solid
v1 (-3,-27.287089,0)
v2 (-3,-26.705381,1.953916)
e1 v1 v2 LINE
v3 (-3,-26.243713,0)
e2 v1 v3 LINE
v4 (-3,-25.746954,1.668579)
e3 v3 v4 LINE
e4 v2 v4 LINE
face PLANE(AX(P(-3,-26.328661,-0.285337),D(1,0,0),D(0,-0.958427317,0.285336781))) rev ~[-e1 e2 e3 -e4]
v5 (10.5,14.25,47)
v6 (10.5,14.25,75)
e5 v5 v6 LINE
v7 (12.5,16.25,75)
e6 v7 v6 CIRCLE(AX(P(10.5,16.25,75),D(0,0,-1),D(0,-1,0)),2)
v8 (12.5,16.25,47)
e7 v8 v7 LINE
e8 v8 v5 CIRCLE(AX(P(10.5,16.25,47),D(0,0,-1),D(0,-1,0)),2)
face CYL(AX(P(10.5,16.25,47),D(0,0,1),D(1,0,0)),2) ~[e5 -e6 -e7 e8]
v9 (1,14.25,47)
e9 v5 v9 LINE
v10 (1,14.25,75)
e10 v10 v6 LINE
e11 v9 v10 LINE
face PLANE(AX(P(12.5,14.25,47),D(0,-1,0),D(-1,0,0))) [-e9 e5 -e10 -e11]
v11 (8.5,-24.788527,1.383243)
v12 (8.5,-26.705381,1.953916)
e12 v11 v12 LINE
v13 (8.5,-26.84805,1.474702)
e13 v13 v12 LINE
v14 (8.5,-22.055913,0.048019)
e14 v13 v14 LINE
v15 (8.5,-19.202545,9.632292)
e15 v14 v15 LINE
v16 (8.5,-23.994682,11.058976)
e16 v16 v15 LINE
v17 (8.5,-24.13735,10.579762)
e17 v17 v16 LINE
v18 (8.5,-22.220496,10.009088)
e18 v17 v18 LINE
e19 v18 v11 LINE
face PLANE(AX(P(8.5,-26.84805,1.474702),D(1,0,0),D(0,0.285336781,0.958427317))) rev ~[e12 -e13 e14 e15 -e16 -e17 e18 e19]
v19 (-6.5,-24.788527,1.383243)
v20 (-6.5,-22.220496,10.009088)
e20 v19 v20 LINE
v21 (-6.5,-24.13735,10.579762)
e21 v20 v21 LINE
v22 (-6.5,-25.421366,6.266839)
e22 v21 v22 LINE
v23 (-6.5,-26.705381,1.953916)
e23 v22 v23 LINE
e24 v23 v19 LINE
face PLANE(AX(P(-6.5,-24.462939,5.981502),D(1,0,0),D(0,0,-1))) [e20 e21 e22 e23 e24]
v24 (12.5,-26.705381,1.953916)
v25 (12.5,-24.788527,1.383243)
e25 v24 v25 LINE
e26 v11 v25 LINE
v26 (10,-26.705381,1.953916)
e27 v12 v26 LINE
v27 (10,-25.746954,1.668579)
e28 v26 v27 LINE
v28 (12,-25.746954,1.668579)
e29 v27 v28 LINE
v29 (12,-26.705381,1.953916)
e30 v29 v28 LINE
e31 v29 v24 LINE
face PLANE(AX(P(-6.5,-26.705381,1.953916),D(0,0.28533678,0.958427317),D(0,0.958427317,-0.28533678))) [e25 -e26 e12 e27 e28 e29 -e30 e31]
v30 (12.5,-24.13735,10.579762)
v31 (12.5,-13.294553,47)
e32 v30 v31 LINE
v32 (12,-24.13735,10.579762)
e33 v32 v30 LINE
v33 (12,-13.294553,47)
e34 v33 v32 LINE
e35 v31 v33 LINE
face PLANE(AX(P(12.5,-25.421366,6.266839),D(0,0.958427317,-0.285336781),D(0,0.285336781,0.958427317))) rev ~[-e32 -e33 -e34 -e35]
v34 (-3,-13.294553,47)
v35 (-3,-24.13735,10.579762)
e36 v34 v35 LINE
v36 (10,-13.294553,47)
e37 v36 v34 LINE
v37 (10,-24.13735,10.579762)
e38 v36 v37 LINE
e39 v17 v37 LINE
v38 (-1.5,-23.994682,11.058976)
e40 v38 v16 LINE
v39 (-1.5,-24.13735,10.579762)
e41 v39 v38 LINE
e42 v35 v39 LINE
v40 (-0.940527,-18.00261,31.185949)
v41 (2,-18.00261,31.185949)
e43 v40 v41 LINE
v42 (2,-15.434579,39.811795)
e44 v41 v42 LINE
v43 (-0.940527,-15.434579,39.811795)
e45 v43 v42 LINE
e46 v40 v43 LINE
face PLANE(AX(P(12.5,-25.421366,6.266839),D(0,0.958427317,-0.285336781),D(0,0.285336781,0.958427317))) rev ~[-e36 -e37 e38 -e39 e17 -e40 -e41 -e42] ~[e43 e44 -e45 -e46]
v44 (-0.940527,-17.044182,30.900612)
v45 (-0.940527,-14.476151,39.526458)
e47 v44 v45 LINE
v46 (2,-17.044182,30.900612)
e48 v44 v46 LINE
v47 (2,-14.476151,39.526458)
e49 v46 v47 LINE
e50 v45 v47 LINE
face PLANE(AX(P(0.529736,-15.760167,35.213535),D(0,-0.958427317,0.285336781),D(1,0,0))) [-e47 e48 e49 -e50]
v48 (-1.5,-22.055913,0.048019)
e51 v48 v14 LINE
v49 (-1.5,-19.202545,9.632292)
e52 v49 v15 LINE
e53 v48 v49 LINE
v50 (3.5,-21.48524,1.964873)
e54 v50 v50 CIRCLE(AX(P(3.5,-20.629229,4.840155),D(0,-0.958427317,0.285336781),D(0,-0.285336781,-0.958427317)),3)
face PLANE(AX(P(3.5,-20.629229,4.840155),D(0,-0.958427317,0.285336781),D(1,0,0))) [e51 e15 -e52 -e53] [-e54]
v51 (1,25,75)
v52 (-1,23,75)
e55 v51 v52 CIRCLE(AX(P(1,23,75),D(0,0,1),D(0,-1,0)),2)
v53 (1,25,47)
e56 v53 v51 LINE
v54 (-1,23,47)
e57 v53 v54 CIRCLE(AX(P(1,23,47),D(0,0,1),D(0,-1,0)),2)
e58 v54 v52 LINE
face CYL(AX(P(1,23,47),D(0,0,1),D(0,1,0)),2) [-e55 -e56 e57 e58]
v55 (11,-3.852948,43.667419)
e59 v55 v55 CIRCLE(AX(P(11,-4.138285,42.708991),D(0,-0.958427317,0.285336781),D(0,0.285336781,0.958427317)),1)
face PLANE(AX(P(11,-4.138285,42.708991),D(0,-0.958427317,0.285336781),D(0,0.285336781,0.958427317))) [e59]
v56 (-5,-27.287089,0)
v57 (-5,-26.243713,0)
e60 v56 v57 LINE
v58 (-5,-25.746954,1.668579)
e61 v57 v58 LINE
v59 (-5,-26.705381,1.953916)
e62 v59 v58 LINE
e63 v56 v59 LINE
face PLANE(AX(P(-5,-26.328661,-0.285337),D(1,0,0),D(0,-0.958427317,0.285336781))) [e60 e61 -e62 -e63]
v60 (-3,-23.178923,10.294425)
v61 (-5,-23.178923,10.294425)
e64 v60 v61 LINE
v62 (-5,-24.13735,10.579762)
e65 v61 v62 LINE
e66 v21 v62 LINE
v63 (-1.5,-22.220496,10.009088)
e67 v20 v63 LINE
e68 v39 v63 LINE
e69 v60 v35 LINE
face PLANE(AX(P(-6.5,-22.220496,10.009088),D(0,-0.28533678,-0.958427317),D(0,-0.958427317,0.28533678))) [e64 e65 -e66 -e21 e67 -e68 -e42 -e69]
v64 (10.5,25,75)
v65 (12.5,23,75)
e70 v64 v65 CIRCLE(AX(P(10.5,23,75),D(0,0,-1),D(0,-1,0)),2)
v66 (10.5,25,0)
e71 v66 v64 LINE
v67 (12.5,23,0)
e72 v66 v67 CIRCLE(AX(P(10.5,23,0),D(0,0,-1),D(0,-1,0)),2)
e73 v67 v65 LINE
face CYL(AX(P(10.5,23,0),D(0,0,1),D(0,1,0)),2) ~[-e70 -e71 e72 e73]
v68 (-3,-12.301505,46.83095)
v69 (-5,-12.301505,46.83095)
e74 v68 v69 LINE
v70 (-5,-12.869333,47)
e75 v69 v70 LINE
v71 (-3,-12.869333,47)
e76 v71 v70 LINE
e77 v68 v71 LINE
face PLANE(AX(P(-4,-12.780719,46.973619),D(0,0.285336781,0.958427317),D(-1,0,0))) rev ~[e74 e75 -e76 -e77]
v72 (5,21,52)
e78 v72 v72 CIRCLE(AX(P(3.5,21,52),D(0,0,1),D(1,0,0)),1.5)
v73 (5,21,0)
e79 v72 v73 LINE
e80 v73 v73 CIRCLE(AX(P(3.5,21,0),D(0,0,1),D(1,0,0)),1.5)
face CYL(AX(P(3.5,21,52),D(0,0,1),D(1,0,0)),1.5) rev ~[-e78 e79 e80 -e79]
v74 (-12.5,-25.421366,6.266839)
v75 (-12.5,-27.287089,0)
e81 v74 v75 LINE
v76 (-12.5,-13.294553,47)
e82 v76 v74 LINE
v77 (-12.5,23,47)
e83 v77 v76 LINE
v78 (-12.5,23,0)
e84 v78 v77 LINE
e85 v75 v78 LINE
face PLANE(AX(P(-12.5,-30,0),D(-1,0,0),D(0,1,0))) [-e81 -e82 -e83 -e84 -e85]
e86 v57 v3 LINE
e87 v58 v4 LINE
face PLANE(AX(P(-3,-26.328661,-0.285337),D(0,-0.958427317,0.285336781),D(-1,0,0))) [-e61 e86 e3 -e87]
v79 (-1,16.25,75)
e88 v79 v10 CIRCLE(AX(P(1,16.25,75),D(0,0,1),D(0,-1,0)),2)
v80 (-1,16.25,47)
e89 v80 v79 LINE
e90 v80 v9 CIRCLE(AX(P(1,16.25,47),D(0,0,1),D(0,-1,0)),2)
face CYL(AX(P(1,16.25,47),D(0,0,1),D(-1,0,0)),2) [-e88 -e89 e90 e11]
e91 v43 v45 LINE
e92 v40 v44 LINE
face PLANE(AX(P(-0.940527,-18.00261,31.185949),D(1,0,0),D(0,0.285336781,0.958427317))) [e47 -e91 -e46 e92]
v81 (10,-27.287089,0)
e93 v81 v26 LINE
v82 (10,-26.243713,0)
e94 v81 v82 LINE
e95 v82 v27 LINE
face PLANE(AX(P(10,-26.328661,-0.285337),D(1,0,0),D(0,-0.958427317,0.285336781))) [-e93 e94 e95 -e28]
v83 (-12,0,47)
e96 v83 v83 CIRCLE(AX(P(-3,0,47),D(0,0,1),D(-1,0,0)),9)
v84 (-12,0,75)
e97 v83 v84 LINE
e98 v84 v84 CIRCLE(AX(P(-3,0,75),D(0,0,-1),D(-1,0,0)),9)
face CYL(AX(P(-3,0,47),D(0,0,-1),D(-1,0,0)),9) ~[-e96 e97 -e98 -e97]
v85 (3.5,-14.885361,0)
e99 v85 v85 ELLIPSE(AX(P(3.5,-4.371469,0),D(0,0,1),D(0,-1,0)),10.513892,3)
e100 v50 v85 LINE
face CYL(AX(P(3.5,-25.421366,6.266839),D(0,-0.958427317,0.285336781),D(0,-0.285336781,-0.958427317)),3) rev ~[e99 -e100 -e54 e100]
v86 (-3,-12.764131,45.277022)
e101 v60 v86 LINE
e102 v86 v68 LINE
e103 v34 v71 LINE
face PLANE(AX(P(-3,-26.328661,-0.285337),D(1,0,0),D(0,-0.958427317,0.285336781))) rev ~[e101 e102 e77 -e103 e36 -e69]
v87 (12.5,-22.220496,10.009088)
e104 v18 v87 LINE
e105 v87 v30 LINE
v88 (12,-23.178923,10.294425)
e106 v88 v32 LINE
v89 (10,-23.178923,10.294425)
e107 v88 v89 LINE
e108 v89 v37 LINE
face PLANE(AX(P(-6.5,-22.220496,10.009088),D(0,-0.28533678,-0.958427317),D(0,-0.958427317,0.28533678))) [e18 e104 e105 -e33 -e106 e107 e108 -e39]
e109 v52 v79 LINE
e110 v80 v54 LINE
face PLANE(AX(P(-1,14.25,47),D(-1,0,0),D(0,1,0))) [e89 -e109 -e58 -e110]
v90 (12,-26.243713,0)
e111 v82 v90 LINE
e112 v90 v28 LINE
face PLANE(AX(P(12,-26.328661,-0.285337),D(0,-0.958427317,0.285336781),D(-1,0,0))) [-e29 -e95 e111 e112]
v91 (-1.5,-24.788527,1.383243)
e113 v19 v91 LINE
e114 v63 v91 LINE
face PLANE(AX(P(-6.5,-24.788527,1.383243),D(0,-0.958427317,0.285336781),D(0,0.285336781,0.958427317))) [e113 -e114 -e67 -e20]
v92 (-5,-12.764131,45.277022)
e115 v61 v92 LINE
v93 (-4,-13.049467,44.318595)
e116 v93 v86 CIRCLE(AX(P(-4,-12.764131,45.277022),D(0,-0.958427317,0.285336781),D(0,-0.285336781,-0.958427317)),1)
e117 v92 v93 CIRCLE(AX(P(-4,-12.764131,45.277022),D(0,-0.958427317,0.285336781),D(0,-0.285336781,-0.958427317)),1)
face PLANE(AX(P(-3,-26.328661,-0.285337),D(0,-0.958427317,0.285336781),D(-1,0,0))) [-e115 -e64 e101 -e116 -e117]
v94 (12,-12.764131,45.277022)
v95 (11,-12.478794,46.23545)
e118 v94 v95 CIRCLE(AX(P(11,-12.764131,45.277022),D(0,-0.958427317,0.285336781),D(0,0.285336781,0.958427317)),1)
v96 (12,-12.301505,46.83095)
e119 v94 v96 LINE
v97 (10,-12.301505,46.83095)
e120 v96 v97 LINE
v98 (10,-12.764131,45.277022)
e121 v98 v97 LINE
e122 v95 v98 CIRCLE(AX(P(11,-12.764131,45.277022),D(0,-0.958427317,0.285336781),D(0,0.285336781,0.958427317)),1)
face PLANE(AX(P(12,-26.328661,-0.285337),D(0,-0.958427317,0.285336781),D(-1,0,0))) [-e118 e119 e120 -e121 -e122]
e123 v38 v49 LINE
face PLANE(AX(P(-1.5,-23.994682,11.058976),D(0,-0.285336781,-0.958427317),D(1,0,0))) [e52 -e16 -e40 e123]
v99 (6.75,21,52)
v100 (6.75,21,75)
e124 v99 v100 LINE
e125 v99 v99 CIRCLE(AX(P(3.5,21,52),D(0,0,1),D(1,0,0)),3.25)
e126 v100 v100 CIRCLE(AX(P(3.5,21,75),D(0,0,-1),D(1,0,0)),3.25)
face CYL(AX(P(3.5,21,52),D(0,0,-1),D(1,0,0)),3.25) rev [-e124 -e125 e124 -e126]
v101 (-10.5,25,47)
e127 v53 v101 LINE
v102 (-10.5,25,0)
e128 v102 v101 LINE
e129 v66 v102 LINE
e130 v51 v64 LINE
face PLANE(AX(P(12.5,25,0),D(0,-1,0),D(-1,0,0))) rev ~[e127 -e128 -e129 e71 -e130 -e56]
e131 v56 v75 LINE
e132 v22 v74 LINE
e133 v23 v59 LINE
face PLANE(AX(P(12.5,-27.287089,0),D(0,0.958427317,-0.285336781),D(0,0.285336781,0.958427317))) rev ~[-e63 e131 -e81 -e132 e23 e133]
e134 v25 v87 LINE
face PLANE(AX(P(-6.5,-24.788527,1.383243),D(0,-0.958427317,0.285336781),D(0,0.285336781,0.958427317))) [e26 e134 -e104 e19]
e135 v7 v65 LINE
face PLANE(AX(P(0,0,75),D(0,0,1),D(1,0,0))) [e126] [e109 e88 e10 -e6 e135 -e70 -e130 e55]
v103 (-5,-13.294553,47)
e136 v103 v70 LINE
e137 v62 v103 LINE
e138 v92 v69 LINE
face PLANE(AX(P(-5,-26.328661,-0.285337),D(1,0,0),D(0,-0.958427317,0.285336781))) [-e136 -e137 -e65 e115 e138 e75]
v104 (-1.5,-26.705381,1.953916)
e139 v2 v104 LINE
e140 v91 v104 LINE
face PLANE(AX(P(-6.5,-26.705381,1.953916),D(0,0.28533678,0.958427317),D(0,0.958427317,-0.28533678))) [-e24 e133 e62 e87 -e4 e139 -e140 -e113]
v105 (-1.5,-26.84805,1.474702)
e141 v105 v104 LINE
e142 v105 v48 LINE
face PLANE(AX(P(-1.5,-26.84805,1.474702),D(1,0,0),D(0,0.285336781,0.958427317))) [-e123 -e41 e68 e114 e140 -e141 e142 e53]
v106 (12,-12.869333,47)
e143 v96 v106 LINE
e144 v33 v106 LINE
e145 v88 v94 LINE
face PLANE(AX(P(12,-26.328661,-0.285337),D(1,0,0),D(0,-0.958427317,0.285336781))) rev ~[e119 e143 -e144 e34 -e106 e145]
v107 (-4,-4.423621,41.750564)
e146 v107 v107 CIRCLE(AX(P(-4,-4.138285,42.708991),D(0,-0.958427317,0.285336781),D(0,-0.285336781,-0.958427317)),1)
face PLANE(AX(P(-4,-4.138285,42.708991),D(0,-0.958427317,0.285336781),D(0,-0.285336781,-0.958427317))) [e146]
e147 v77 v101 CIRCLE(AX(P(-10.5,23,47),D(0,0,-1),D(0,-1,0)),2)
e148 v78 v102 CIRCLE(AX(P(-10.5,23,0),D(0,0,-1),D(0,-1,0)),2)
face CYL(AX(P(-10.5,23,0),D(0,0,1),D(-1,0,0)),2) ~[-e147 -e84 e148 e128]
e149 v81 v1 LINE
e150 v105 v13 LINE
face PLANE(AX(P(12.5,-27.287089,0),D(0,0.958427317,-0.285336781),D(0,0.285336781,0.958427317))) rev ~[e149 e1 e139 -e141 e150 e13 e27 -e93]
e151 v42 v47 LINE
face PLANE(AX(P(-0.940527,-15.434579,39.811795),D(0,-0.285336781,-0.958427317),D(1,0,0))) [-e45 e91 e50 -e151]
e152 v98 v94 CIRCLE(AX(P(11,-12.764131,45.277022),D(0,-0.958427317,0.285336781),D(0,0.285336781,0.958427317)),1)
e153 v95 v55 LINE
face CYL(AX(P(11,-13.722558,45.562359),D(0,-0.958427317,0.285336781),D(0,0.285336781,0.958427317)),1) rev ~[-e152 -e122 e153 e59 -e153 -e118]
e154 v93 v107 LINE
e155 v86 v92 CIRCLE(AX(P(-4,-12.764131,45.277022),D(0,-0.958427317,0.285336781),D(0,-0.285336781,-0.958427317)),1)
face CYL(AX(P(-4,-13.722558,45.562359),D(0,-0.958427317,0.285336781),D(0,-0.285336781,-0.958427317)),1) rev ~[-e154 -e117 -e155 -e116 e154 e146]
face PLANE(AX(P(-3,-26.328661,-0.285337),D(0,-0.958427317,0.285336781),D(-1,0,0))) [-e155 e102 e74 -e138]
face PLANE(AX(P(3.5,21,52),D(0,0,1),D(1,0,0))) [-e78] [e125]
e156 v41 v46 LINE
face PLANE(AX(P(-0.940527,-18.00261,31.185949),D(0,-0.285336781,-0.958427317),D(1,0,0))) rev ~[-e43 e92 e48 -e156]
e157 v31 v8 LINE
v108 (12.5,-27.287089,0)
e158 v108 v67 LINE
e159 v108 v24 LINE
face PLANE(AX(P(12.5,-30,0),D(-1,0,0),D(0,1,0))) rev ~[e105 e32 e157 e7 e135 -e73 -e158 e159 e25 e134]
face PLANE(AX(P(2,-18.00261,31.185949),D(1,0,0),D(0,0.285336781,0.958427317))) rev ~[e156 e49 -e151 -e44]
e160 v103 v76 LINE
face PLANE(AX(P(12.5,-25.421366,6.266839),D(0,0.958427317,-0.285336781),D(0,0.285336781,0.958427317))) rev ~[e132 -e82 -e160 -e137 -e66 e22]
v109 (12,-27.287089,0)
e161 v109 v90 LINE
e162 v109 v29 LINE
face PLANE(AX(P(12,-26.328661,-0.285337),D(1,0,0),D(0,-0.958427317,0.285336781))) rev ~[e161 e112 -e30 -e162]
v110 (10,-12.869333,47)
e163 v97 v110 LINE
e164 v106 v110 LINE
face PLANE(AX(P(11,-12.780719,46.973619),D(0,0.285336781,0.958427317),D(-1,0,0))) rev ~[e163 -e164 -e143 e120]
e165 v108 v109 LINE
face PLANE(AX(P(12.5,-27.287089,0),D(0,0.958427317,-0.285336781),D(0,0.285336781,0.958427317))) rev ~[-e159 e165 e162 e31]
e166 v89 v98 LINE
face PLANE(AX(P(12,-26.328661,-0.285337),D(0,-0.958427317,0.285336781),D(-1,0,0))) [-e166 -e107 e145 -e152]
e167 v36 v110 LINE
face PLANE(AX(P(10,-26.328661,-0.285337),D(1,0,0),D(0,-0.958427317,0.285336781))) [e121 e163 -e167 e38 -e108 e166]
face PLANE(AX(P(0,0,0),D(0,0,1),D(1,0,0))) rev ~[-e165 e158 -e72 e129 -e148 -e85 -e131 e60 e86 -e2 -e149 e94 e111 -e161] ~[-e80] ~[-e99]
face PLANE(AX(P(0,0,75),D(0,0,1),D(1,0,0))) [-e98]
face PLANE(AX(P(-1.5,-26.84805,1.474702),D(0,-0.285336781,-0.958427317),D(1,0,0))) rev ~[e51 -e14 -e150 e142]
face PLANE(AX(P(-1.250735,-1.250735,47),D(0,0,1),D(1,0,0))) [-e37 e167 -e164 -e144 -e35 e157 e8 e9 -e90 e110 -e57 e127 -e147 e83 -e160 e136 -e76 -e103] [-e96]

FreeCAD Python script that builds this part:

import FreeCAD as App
import Part
import Sketcher
Q = App.Units.Quantity


def edges_at(feature, points):
    """Names of the edges that pass closest to the given points."""
    edges = feature.Shape.Edges
    near = lambda p: min(range(len(edges)), key=lambda i: edges[i].distToShape(Part.Vertex(*p))[0])
    return sorted({f"Edge{near(p) + 1}" for p in points})

doc = App.newDocument("Part")
params = doc.addObject("Spreadsheet::Sheet", "Params")
for row, (alias, value) in enumerate([
    ("sketch1_width", "25 mm"),
    ("sketch1_height", "60 mm"),
    ("pad1_length", "75 mm"),
    ("sketch2_diameter", "18 mm"),
    ("sketch2_width", "25 mm"),
    ("sketch2_height", "60 mm"),
    ("sketch2_width2", "13.5 mm"),
    ("sketch2_height2", "44.25 mm"),
    ("sketch3_diameter", "6.5 mm"),
    ("sketch4_diameter", "3 mm"),
    ("sketch5_width", "25 mm"),
    ("sketch5_height", "5 mm"),
    ("sketch6_height", "47 mm"),
    ("sketch6_length", "42.5 mm"),
    ("sketch7_diameter", "6 mm"),
    ("sketch8_width", "10 mm"),
    ("pocket7_length", "5 mm"),
    ("sketch9_length", "9 mm"),
    ("sketch9_length2", "2 mm"),
    ("pocket8_length", "15 mm"),
    ("pocket8_length2", "5 mm"),
    ("sketch10_diameter", "2 mm"),
    ("pocket9_length", "10 mm"),
    ("sketch11_width", "2 mm"),
    ("sketch11_height", "1 mm"),
    ("pocket10_length", "49.16 mm"),
    ("sketch12_height", "9 mm"),
    ("pocket11_length", "1 mm"),
    ("fillet_radius", "2 mm"),
], start=1):
    params.set(f"A{row}", alias)
    params.set(f"B{row}", "=" + value)
    params.setAlias(f"B{row}", alias)

body = doc.addObject("PartDesign::Body", "Body")

sketch1 = doc.addObject("Sketcher::SketchObject", "Sketch")
body.addObject(sketch1)
sketch1.AttachmentSupport = (doc.XY_Plane, [""])
sketch1.MapMode = "FlatFace"
sketch1.addGeometry(Part.LineSegment(App.Vector(-12, 30, 0), App.Vector(-12, -30, 0)), False)
sketch1.addGeometry(Part.LineSegment(App.Vector(-12, -30, 0), App.Vector(12, -30, 0)), False)
sketch1.addGeometry(Part.LineSegment(App.Vector(12, -30, 0), App.Vector(12, 30, 0)), False)
sketch1.addGeometry(Part.LineSegment(App.Vector(12, 30, 0), App.Vector(-12, 30, 0)), False)
sketch1.addConstraint(Sketcher.Constraint("Coincident", 0, 2, 1, 1))
sketch1.addConstraint(Sketcher.Constraint("Coincident", 1, 2, 2, 1))
sketch1.addConstraint(Sketcher.Constraint("Coincident", 2, 2, 3, 1))
sketch1.addConstraint(Sketcher.Constraint("Coincident", 3, 2, 0, 1))
sketch1.addConstraint(Sketcher.Constraint("Vertical", 0))
sketch1.addConstraint(Sketcher.Constraint("Horizontal", 1))
sketch1.addConstraint(Sketcher.Constraint("Vertical", 2))
sketch1.addConstraint(Sketcher.Constraint("Horizontal", 3))
sketch1.addConstraint(Sketcher.Constraint("Symmetric", 0, 2, 2, 2, -1, 1))
sketch1.addConstraint(Sketcher.Constraint("DistanceX", 1, 1, 1, 2, Q("25 mm")))
sketch1.addConstraint(Sketcher.Constraint("DistanceY", 0, 2, 0, 1, Q("60 mm")))
sketch1.setExpression("Constraints[9]", "Params.sketch1_width")
sketch1.setExpression("Constraints[10]", "Params.sketch1_height")
pad1 = doc.addObject("PartDesign::Pad", "Pad")
body.addObject(pad1)
pad1.Profile = sketch1
pad1.setExpression("Length", "Params.pad1_length")

sketch2 = doc.addObject("Sketcher::SketchObject", "Sketch001")
body.addObject(sketch2)
sketch2.AttachmentSupport = (doc.XY_Plane, [""])
sketch2.MapMode = "FlatFace"
sketch2.AttachmentOffset = App.Placement(App.Vector(0, 0, 47), App.Rotation())
sketch2.addGeometry(Part.LineSegment(App.Vector(-12, -30, 0), App.Vector(12, -30, 0)), False)
sketch2.addGeometry(Part.LineSegment(App.Vector(12, -30, 0), App.Vector(12, 14, 0)), False)
sketch2.addGeometry(Part.LineSegment(App.Vector(12, 14, 0), App.Vector(-1, 14, 0)), False)
sketch2.addGeometry(Part.LineSegment(App.Vector(-1, 14, 0), App.Vector(-1, 30, 0)), False)
sketch2.addGeometry(Part.LineSegment(App.Vector(-1, 30, 0), App.Vector(-12, 30, 0)), False)
sketch2.addGeometry(Part.LineSegment(App.Vector(-12, 30, 0), App.Vector(-12, -30, 0)), False)
sketch2.addGeometry(Part.Circle(App.Vector(-3, 0, 0), App.Vector(0, 0, 1), 9), False)
sketch2.addConstraint(Sketcher.Constraint("Coincident", 0, 2, 1, 1))
sketch2.addConstraint(Sketcher.Constraint("Coincident", 1, 2, 2, 1))
sketch2.addConstraint(Sketcher.Constraint("Coincident", 2, 2, 3, 1))
sketch2.addConstraint(Sketcher.Constraint("Coincident", 3, 2, 4, 1))
sketch2.addConstraint(Sketcher.Constraint("Coincident", 4, 2, 5, 1))
sketch2.addConstraint(Sketcher.Constraint("Coincident", 5, 2, 0, 1))
sketch2.addConstraint(Sketcher.Constraint("Horizontal", 0))
sketch2.addConstraint(Sketcher.Constraint("Vertical", 1))
sketch2.addConstraint(Sketcher.Constraint("Horizontal", 2))
sketch2.addConstraint(Sketcher.Constraint("Vertical", 3))
sketch2.addConstraint(Sketcher.Constraint("Horizontal", 4))
sketch2.addConstraint(Sketcher.Constraint("Vertical", 5))
sketch2.addConstraint(Sketcher.Constraint("Symmetric", 0, 2, 4, 2, -1, 1))
sketch2.addConstraint(Sketcher.Constraint("PointOnObject", 6, 3, -1))
sketch2.addConstraint(Sketcher.Constraint("Diameter", 6, Q("18 mm")))
sketch2.addConstraint(Sketcher.Constraint("DistanceX", 0, 1, 0, 2, Q("25 mm")))
sketch2.addConstraint(Sketcher.Constraint("DistanceY", 5, 2, 5, 1, Q("60 mm")))
sketch2.addConstraint(Sketcher.Constraint("DistanceX", 2, 2, 2, 1, Q("13.5 mm")))
sketch2.addConstraint(Sketcher.Constraint("DistanceX", 6, 3, -1, 1, Q("3 mm")))
sketch2.addConstraint(Sketcher.Constraint("DistanceY", 1, 1, 1, 2, Q("44.25 mm")))
sketch2.setExpression("Constraints[14]", "Params.sketch2_diameter")
sketch2.setExpression("Constraints[15]", "Params.sketch2_width")
sketch2.setExpression("Constraints[16]", "Params.sketch2_height")
sketch2.setExpression("Constraints[17]", "Params.sketch2_width2")
sketch2.setExpression("Constraints[19]", "Params.sketch2_height2")
pocket1 = doc.addObject("PartDesign::Pocket", "Pocket")
body.addObject(pocket1)
pocket1.Profile = sketch2
pocket1.Type = "ThroughAll"
pocket1.Reversed = True

sketch3 = doc.addObject("Sketcher::SketchObject", "Sketch002")
body.addObject(sketch3)
sketch3.AttachmentSupport = (doc.XY_Plane, [""])
sketch3.MapMode = "FlatFace"
sketch3.AttachmentOffset = App.Placement(App.Vector(0, 0, 52), App.Rotation())
sketch3.addGeometry(Part.Circle(App.Vector(3.5, 21, 0), App.Vector(0, 0, 1), 3.2), False)
sketch3.addConstraint(Sketcher.Constraint("Diameter", 0, Q("6.5 mm")))
sketch3.addConstraint(Sketcher.Constraint("DistanceY", -1, 1, 0, 3, Q("21 mm")))
sketch3.addConstraint(Sketcher.Constraint("DistanceX", -1, 1, 0, 3, Q("3.5 mm")))
sketch3.setExpression("Constraints[0]", "Params.sketch3_diameter")
pocket2 = doc.addObject("PartDesign::Pocket", "Pocket001")
body.addObject(pocket2)
pocket2.Profile = sketch3
pocket2.Type = "ThroughAll"
pocket2.Reversed = True

sketch4 = doc.addObject("Sketcher::SketchObject", "Sketch003")
body.addObject(sketch4)
sketch4.AttachmentSupport = (doc.XY_Plane, [""])
sketch4.MapMode = "FlatFace"
sketch4.AttachmentOffset = App.Placement(App.Vector(0, 0, 52), App.Rotation())
sketch4.addGeometry(Part.Circle(App.Vector(3.5, 21, 0), App.Vector(0, 0, 1), 1.5), False)
sketch4.addConstraint(Sketcher.Constraint("Diameter", 0, Q("3 mm")))
sketch4.addConstraint(Sketcher.Constraint("DistanceY", -1, 1, 0, 3, Q("21 mm")))
sketch4.addConstraint(Sketcher.Constraint("DistanceX", -1, 1, 0, 3, Q("3.5 mm")))
sketch4.setExpression("Constraints[0]", "Params.sketch4_diameter")
pocket3 = doc.addObject("PartDesign::Pocket", "Pocket002")
body.addObject(pocket3)
pocket3.Profile = sketch4
pocket3.Type = "ThroughAll"

sketch5 = doc.addObject("Sketcher::SketchObject", "Sketch004")
body.addObject(sketch5)
sketch5.AttachmentSupport = (doc.XY_Plane, [""])
sketch5.MapMode = "FlatFace"
sketch5.addGeometry(Part.LineSegment(App.Vector(12, 30, 0), App.Vector(12, 25, 0)), False)
sketch5.addGeometry(Part.LineSegment(App.Vector(12, 25, 0), App.Vector(-12, 25, 0)), False)
sketch5.addGeometry(Part.LineSegment(App.Vector(-12, 25, 0), App.Vector(-12, 30, 0)), False)
sketch5.addGeometry(Part.LineSegment(App.Vector(-12, 30, 0), App.Vector(12, 30, 0)), False)
sketch5.addConstraint(Sketcher.Constraint("Coincident", 0, 2, 1, 1))
sketch5.addConstraint(Sketcher.Constraint("Coincident", 1, 2, 2, 1))
sketch5.addConstraint(Sketcher.Constraint("Coincident", 2, 2, 3, 1))
sketch5.addConstraint(Sketcher.Constraint("Coincident", 3, 2, 0, 1))
sketch5.addConstraint(Sketcher.Constraint("Vertical", 0))
sketch5.addConstraint(Sketcher.Constraint("Horizontal", 1))
sketch5.addConstraint(Sketcher.Constraint("Vertical", 2))
sketch5.addConstraint(Sketcher.Constraint("Horizontal", 3))
sketch5.addConstraint(Sketcher.Constraint("DistanceX", 1, 2, 1, 1, Q("25 mm")))
sketch5.addConstraint(Sketcher.Constraint("DistanceY", 0, 2, 0, 1, Q("5 mm")))
sketch5.addConstraint(Sketcher.Constraint("DistanceY", -1, 1, 0, 2, Q("25 mm")))
sketch5.addConstraint(Sketcher.Constraint("DistanceX", -1, 1, 0, 2, Q("12.5 mm")))
sketch5.setExpression("Constraints[8]", "Params.sketch5_width")
sketch5.setExpression("Constraints[9]", "Params.sketch5_height")
pocket4 = doc.addObject("PartDesign::Pocket", "Pocket003")
body.addObject(pocket4)
pocket4.Profile = sketch5
pocket4.Type = "ThroughAll"
pocket4.Reversed = True

sketch6 = doc.addObject("Sketcher::SketchObject", "Sketch005")
body.addObject(sketch6)
sketch6.AttachmentSupport = (doc.YZ_Plane, [""])
sketch6.MapMode = "FlatFace"
sketch6.AttachmentOffset = App.Placement(App.Vector(0, 0, 12.5), App.Rotation())
sketch6.addGeometry(Part.LineSegment(App.Vector(-25.4, 6.3, 0), App.Vector(-13.3, 47, 0)), False)
sketch6.addGeometry(Part.LineSegment(App.Vector(-13.3, 47, 0), App.Vector(-30, 47, 0)), False)
sketch6.addGeometry(Part.LineSegment(App.Vector(-30, 47, 0), App.Vector(-30, 0, 0)), False)
sketch6.addGeometry(Part.LineSegment(App.Vector(-30, 0, 0), App.Vector(-27.3, 0, 0)), False)
sketch6.addGeometry(Part.LineSegment(App.Vector(-27.3, 0, 0), App.Vector(-25.4, 6.3, 0)), False)
sketch6.addConstraint(Sketcher.Constraint("Coincident", 0, 2, 1, 1))
sketch6.addConstraint(Sketcher.Constraint("Coincident", 1, 2, 2, 1))
sketch6.addConstraint(Sketcher.Constraint("Coincident", 2, 2, 3, 1))
sketch6.addConstraint(Sketcher.Constraint("Coincident", 3, 2, 4, 1))
sketch6.addConstraint(Sketcher.Constraint("Coincident", 4, 2, 0, 1))
sketch6.addConstraint(Sketcher.Constraint("Horizontal", 1))
sketch6.addConstraint(Sketcher.Constraint("Vertical", 2))
sketch6.addConstraint(Sketcher.Constraint("Horizontal", 3))
sketch6.addConstraint(Sketcher.Constraint("PointOnObject", 2, 2, -1))
sketch6.addConstraint(Sketcher.Constraint("Parallel", 0, 4))
sketch6.addConstraint(Sketcher.Constraint("DistanceY", 2, 2, 2, 1, Q("47 mm")))
sketch6.addConstraint(Sketcher.Constraint("DistanceX", 1, 2, -1, 1, Q("30 mm")))
sketch6.addConstraint(Sketcher.Constraint("Distance", 0, Q("42.5 mm")))
sketch6.addConstraint(Sketcher.Constraint("DistanceX", 3, 1, 3, 2, Q("2.712911 mm")))
sketch6.addConstraint(Sketcher.Constraint("Distance", 4, Q("6.538669 mm")))
sketch6.setExpression("Constraints[10]", "Params.sketch6_height")
sketch6.setExpression("Constraints[12]", "Params.sketch6_length")
pocket5 = doc.addObject("PartDesign::Pocket", "Pocket004")
body.addObject(pocket5)
pocket5.Profile = sketch6
pocket5.Type = "ThroughAll"

sketch7 = doc.addObject("Sketcher::SketchObject", "Sketch006")
body.addObject(sketch7)
sketch7.Placement = App.Placement(App.Vector(0, -25.065454, 7.462325), App.Rotation(App.Vector(1, 0, 0), App.Vector(0, 0.285336781, 0.958427317), App.Vector(0, -0.958427317, 0.285336781), "ZXY"))
sketch7.addGeometry(Part.Circle(App.Vector(3.5, -1.2, 0), App.Vector(0, 0, 1), 3), False)
sketch7.addConstraint(Sketcher.Constraint("Diameter", 0, Q("6 mm")))
sketch7.addConstraint(Sketcher.Constraint("DistanceX", -1, 1, 0, 3, Q("3.5 mm")))
sketch7.addConstraint(Sketcher.Constraint("DistanceY", 0, 3, -1, 1, Q("1.247341 mm")))
sketch7.setExpression("Constraints[0]", "Params.sketch7_diameter")
pocket6 = doc.addObject("PartDesign::Pocket", "Pocket005")
body.addObject(pocket6)
pocket6.Profile = sketch7
pocket6.Type = "ThroughAll"

sketch8 = doc.addObject("Sketcher::SketchObject", "Sketch007")
body.addObject(sketch8)
sketch8.Placement = App.Placement(App.Vector(0, -25.065454, 7.462325), App.Rotation(App.Vector(1, 0, 0), App.Vector(0, 0.285336781, 0.958427317), App.Vector(0, -0.958427317, 0.285336781), "ZXY"))
sketch8.addGeometry(Part.LineSegment(App.Vector(-2, 4, 0), App.Vector(-2, -6, 0)), False)
sketch8.addGeometry(Part.LineSegment(App.Vector(-2, -6, 0), App.Vector(8, -6, 0)), False)
sketch8.addGeometry(Part.LineSegment(App.Vector(8, -6, 0), App.Vector(8, 4, 0)), False)
sketch8.addGeometry(Part.LineSegment(App.Vector(8, 4, 0), App.Vector(-2, 4, 0)), False)
sketch8.addConstraint(Sketcher.Constraint("Coincident", 0, 2, 1, 1))
sketch8.addConstraint(Sketcher.Constraint("Coincident", 1, 2, 2, 1))
sketch8.addConstraint(Sketcher.Constraint("Coincident", 2, 2, 3, 1))
sketch8.addConstraint(Sketcher.Constraint("Coincident", 3, 2, 0, 1))
sketch8.addConstraint(Sketcher.Constraint("Vertical", 0))
sketch8.addConstraint(Sketcher.Constraint("Horizontal", 1))
sketch8.addConstraint(Sketcher.Constraint("Vertical", 2))
sketch8.addConstraint(Sketcher.Constraint("Horizontal", 3))
sketch8.addConstraint(Sketcher.Constraint("Equal", 3, 0))
sketch8.addConstraint(Sketcher.Constraint("DistanceX", 1, 1, 1, 2, Q("10 mm")))
sketch8.addConstraint(Sketcher.Constraint("DistanceX", 0, 2, -1, 1, Q("1.5 mm")))
sketch8.addConstraint(Sketcher.Constraint("DistanceY", 0, 2, -1, 1, Q("6.247341 mm")))
sketch8.setExpression("Constraints[9]", "Params.sketch8_width")
pocket7 = doc.addObject("PartDesign::Pocket", "Pocket006")
body.addObject(pocket7)
pocket7.Profile = sketch8
pocket7.setExpression("Length", "Params.pocket7_length")

sketch9 = doc.addObject("Sketcher::SketchObject", "Sketch008")
body.addObject(sketch9)
sketch9.AttachmentSupport = (doc.YZ_Plane, [""])
sketch9.MapMode = "FlatFace"
sketch9.AttachmentOffset = App.Placement(App.Vector(0, 0, -1.5), App.Rotation())
sketch9.addGeometry(Part.LineSegment(App.Vector(-24.1, 10.6, 0), App.Vector(-26.7, 2, 0)), False)
sketch9.addGeometry(Part.LineSegment(App.Vector(-26.7, 2, 0), App.Vector(-24.8, 1.4, 0)), False)
sketch9.addGeometry(Part.LineSegment(App.Vector(-24.8, 1.4, 0), App.Vector(-22.2, 10, 0)), False)
sketch9.addGeometry(Part.LineSegment(App.Vector(-22.2, 10, 0), App.Vector(-24.1, 10.6, 0)), False)
sketch9.addConstraint(Sketcher.Constraint("Coincident", 0, 2, 1, 1))
sketch9.addConstraint(Sketcher.Constraint("Coincident", 1, 2, 2, 1))
sketch9.addConstraint(Sketcher.Constraint("Coincident", 2, 2, 3, 1))
sketch9.addConstraint(Sketcher.Constraint("Coincident", 3, 2, 0, 1))
sketch9.addConstraint(Sketcher.Constraint("Perpendicular", 0, 1))
sketch9.addConstraint(Sketcher.Constraint("Perpendicular", 1, 2))
sketch9.addConstraint(Sketcher.Constraint("Perpendicular", 2, 3))
sketch9.addConstraint(Sketcher.Constraint("Distance", 0, Q("9 mm")))
sketch9.addConstraint(Sketcher.Constraint("Distance", 1, Q("2 mm")))
sketch9.addConstraint(Sketcher.Constraint("DistanceX", 0, 2, -1, 1, Q("26.705381 mm")))
sketch9.addConstraint(Sketcher.Constraint("DistanceY", -1, 1, 2, 2, Q("10.009088 mm")))
sketch9.addConstraint(Sketcher.Constraint("DistanceX", 3, 2, -1, 1, Q("24.13735 mm")))
sketch9.setExpression("Constraints[7]", "Params.sketch9_length")
sketch9.setExpression("Constraints[8]", "Params.sketch9_length2")
pocket8 = doc.addObject("PartDesign::Pocket", "Pocket007")
body.addObject(pocket8)
pocket8.Profile = sketch9
pocket8.Type = "TwoLengths"
pocket8.setExpression("Length", "Params.pocket8_length")
pocket8.setExpression("Length2", "Params.pocket8_length2")
pocket8.Reversed = True

sketch10 = doc.addObject("Sketcher::SketchObject", "Sketch009")
body.addObject(sketch10)
sketch10.Placement = App.Placement(App.Vector(0, -25.065454, 7.462325), App.Rotation(App.Vector(1, 0, 0), App.Vector(0, 0.285336781, 0.958427317), App.Vector(0, -0.958427317, 0.285336781), "ZXY"))
sketch10.addGeometry(Part.Circle(App.Vector(-4, 39.8, 0), App.Vector(0, 0, 1), 1), False)
sketch10.addGeometry(Part.Circle(App.Vector(11, 39.8, 0), App.Vector(0, 0, 1), 1), False)
sketch10.addConstraint(Sketcher.Constraint("Equal", 0, 1))
sketch10.addConstraint(Sketcher.Constraint("Horizontal", 0, 3, 1, 3))
sketch10.addConstraint(Sketcher.Constraint("Diameter", 0, Q("2 mm")))
sketch10.addConstraint(Sketcher.Constraint("DistanceX", 0, 3, -1, 1, Q("4 mm")))
sketch10.addConstraint(Sketcher.Constraint("DistanceX", -1, 1, 1, 3, Q("11 mm")))
sketch10.addConstraint(Sketcher.Constraint("DistanceY", -1, 1, 0, 3, Q("39.752659 mm")))
sketch10.setExpression("Constraints[2]", "Params.sketch10_diameter")
pocket9 = doc.addObject("PartDesign::Pocket", "Pocket008")
body.addObject(pocket9)
pocket9.Profile = sketch10
pocket9.setExpression("Length", "Params.pocket9_length")

sketch11 = doc.addObject("Sketcher::SketchObject", "Sketch010")
body.addObject(sketch11)
sketch11.Placement = App.Placement(App.Vector(0, -55.116214, 8.285107), App.Rotation(App.Vector(-1, 0, 0), App.Vector(0, -0.958427317, 0.285336781), App.Vector(0, 0.285336781, 0.958427317), "ZXY"))
sketch11.addGeometry(Part.LineSegment(App.Vector(3, -29, 0), App.Vector(3, -30, 0)), False)
sketch11.addGeometry(Part.LineSegment(App.Vector(3, -30, 0), App.Vector(5, -30, 0)), False)
sketch11.addGeometry(Part.LineSegment(App.Vector(5, -30, 0), App.Vector(5, -29, 0)), False)
sketch11.addGeometry(Part.LineSegment(App.Vector(5, -29, 0), App.Vector(3, -29, 0)), False)
sketch11.addGeometry(Part.LineSegment(App.Vector(-12, -29, 0), App.Vector(-12, -30, 0)), False)
sketch11.addGeometry(Part.LineSegment(App.Vector(-12, -30, 0), App.Vector(-10, -30, 0)), False)
sketch11.addGeometry(Part.LineSegment(App.Vector(-10, -30, 0), App.Vector(-10, -29, 0)), False)
sketch11.addGeometry(Part.LineSegment(App.Vector(-10, -29, 0), App.Vector(-12, -29, 0)), False)
sketch11.addConstraint(Sketcher.Constraint("Coincident", 0, 2, 1, 1))
sketch11.addConstraint(Sketcher.Constraint("Coincident", 1, 2, 2, 1))
sketch11.addConstraint(Sketcher.Constraint("Coincident", 2, 2, 3, 1))
sketch11.addConstraint(Sketcher.Constraint("Coincident", 3, 2, 0, 1))
sketch11.addConstraint(Sketcher.Constraint("Coincident", 4, 2, 5, 1))
sketch11.addConstraint(Sketcher.Constraint("Coincident", 5, 2, 6, 1))
sketch11.addConstraint(Sketcher.Constraint("Coincident", 6, 2, 7, 1))
sketch11.addConstraint(Sketcher.Constraint("Coincident", 7, 2, 4, 1))
sketch11.addConstraint(Sketcher.Constraint("Vertical", 0))
sketch11.addConstraint(Sketcher.Constraint("Horizontal", 1))
sketch11.addConstraint(Sketcher.Constraint("Vertical", 2))
sketch11.addConstraint(Sketcher.Constraint("Horizontal", 3))
sketch11.addConstraint(Sketcher.Constraint("Vertical", 4))
sketch11.addConstraint(Sketcher.Constraint("Horizontal", 5))
sketch11.addConstraint(Sketcher.Constraint("Vertical", 6))
sketch11.addConstraint(Sketcher.Constraint("Horizontal", 7))
sketch11.addConstraint(Sketcher.Constraint("Horizontal", 1, 2, 4, 2))
sketch11.addConstraint(Sketcher.Constraint("Horizontal", 3, 2, 6, 2))
sketch11.addConstraint(Sketcher.Constraint("Equal", 3, 5))
sketch11.addConstraint(Sketcher.Constraint("DistanceX", 1, 1, 1, 2, Q("2 mm")))
sketch11.addConstraint(Sketcher.Constraint("DistanceY", 0, 2, 0, 1, Q("1 mm")))
sketch11.addConstraint(Sketcher.Constraint("DistanceX", -1, 1, 0, 2, Q("3 mm")))
sketch11.addConstraint(Sketcher.Constraint("DistanceX", 4, 2, -1, 1, Q("12 mm")))
sketch11.addConstraint(Sketcher.Constraint("DistanceY", 0, 2, -1, 1, Q("30.03624 mm")))
sketch11.setExpression("Constraints[19]", "Params.sketch11_width")
sketch11.setExpression("Constraints[20]", "Params.sketch11_height")
pocket10 = doc.addObject("PartDesign::Pocket", "Pocket009")
body.addObject(pocket10)
pocket10.Profile = sketch11
pocket10.setExpression("Length", "Params.pocket10_length")
pocket10.Reversed = True

sketch12 = doc.addObject("Sketcher::SketchObject", "Sketch011")
body.addObject(sketch12)
sketch12.Placement = App.Placement(App.Vector(0, -25.065454, 7.462325), App.Rotation(App.Vector(1, 0, 0), App.Vector(0, 0.285336781, 0.958427317), App.Vector(0, -0.958427317, 0.285336781), "ZXY"))
sketch12.addGeometry(Part.LineSegment(App.Vector(-0.9, 33.8, 0), App.Vector(-0.9, 24.8, 0)), False)
sketch12.addGeometry(Part.LineSegment(App.Vector(-0.9, 24.8, 0), App.Vector(2, 24.8, 0)), False)
sketch12.addGeometry(Part.LineSegment(App.Vector(2, 24.8, 0), App.Vector(2, 33.8, 0)), False)
sketch12.addGeometry(Part.LineSegment(App.Vector(2, 33.8, 0), App.Vector(-0.9, 33.8, 0)), False)
sketch12.addConstraint(Sketcher.Constraint("Coincident", 0, 2, 1, 1))
sketch12.addConstraint(Sketcher.Constraint("Coincident", 1, 2, 2, 1))
sketch12.addConstraint(Sketcher.Constraint("Coincident", 2, 2, 3, 1))
sketch12.addConstraint(Sketcher.Constraint("Coincident", 3, 2, 0, 1))
sketch12.addConstraint(Sketcher.Constraint("Vertical", 0))
sketch12.addConstraint(Sketcher.Constraint("Horizontal", 1))
sketch12.addConstraint(Sketcher.Constraint("Vertical", 2))
sketch12.addConstraint(Sketcher.Constraint("Horizontal", 3))
sketch12.addConstraint(Sketcher.Constraint("DistanceY", 0, 2, 0, 1, Q("9 mm")))
sketch12.addConstraint(Sketcher.Constraint("DistanceX", -1, 1, 1, 2, Q("2 mm")))
sketch12.addConstraint(Sketcher.Constraint("DistanceX", 1, 1, 1, 2, Q("2.940527 mm")))
sketch12.addConstraint(Sketcher.Constraint("DistanceY", -1, 1, 0, 2, Q("24.752659 mm")))
sketch12.setExpression("Constraints[8]", "Params.sketch12_height")
pocket11 = doc.addObject("PartDesign::Pocket", "Pocket010")
body.addObject(pocket11)
pocket11.Profile = sketch12
pocket11.setExpression("Length", "Params.pocket11_length")
doc.recompute()

fillet = doc.addObject("PartDesign::Fillet", "Fillet")
body.addObject(fillet)
fillet.Base = (pocket11, edges_at(pocket11, [
    (12.5, 14.25, 61),
    (-1, 14.25, 61),
    (-1, 25, 61),
    (-12.5, 25, 23.5),
    (12.5, 25, 37.5),
]))
fillet.setExpression("Radius", "Params.fillet_radius")

doc.recompute()
